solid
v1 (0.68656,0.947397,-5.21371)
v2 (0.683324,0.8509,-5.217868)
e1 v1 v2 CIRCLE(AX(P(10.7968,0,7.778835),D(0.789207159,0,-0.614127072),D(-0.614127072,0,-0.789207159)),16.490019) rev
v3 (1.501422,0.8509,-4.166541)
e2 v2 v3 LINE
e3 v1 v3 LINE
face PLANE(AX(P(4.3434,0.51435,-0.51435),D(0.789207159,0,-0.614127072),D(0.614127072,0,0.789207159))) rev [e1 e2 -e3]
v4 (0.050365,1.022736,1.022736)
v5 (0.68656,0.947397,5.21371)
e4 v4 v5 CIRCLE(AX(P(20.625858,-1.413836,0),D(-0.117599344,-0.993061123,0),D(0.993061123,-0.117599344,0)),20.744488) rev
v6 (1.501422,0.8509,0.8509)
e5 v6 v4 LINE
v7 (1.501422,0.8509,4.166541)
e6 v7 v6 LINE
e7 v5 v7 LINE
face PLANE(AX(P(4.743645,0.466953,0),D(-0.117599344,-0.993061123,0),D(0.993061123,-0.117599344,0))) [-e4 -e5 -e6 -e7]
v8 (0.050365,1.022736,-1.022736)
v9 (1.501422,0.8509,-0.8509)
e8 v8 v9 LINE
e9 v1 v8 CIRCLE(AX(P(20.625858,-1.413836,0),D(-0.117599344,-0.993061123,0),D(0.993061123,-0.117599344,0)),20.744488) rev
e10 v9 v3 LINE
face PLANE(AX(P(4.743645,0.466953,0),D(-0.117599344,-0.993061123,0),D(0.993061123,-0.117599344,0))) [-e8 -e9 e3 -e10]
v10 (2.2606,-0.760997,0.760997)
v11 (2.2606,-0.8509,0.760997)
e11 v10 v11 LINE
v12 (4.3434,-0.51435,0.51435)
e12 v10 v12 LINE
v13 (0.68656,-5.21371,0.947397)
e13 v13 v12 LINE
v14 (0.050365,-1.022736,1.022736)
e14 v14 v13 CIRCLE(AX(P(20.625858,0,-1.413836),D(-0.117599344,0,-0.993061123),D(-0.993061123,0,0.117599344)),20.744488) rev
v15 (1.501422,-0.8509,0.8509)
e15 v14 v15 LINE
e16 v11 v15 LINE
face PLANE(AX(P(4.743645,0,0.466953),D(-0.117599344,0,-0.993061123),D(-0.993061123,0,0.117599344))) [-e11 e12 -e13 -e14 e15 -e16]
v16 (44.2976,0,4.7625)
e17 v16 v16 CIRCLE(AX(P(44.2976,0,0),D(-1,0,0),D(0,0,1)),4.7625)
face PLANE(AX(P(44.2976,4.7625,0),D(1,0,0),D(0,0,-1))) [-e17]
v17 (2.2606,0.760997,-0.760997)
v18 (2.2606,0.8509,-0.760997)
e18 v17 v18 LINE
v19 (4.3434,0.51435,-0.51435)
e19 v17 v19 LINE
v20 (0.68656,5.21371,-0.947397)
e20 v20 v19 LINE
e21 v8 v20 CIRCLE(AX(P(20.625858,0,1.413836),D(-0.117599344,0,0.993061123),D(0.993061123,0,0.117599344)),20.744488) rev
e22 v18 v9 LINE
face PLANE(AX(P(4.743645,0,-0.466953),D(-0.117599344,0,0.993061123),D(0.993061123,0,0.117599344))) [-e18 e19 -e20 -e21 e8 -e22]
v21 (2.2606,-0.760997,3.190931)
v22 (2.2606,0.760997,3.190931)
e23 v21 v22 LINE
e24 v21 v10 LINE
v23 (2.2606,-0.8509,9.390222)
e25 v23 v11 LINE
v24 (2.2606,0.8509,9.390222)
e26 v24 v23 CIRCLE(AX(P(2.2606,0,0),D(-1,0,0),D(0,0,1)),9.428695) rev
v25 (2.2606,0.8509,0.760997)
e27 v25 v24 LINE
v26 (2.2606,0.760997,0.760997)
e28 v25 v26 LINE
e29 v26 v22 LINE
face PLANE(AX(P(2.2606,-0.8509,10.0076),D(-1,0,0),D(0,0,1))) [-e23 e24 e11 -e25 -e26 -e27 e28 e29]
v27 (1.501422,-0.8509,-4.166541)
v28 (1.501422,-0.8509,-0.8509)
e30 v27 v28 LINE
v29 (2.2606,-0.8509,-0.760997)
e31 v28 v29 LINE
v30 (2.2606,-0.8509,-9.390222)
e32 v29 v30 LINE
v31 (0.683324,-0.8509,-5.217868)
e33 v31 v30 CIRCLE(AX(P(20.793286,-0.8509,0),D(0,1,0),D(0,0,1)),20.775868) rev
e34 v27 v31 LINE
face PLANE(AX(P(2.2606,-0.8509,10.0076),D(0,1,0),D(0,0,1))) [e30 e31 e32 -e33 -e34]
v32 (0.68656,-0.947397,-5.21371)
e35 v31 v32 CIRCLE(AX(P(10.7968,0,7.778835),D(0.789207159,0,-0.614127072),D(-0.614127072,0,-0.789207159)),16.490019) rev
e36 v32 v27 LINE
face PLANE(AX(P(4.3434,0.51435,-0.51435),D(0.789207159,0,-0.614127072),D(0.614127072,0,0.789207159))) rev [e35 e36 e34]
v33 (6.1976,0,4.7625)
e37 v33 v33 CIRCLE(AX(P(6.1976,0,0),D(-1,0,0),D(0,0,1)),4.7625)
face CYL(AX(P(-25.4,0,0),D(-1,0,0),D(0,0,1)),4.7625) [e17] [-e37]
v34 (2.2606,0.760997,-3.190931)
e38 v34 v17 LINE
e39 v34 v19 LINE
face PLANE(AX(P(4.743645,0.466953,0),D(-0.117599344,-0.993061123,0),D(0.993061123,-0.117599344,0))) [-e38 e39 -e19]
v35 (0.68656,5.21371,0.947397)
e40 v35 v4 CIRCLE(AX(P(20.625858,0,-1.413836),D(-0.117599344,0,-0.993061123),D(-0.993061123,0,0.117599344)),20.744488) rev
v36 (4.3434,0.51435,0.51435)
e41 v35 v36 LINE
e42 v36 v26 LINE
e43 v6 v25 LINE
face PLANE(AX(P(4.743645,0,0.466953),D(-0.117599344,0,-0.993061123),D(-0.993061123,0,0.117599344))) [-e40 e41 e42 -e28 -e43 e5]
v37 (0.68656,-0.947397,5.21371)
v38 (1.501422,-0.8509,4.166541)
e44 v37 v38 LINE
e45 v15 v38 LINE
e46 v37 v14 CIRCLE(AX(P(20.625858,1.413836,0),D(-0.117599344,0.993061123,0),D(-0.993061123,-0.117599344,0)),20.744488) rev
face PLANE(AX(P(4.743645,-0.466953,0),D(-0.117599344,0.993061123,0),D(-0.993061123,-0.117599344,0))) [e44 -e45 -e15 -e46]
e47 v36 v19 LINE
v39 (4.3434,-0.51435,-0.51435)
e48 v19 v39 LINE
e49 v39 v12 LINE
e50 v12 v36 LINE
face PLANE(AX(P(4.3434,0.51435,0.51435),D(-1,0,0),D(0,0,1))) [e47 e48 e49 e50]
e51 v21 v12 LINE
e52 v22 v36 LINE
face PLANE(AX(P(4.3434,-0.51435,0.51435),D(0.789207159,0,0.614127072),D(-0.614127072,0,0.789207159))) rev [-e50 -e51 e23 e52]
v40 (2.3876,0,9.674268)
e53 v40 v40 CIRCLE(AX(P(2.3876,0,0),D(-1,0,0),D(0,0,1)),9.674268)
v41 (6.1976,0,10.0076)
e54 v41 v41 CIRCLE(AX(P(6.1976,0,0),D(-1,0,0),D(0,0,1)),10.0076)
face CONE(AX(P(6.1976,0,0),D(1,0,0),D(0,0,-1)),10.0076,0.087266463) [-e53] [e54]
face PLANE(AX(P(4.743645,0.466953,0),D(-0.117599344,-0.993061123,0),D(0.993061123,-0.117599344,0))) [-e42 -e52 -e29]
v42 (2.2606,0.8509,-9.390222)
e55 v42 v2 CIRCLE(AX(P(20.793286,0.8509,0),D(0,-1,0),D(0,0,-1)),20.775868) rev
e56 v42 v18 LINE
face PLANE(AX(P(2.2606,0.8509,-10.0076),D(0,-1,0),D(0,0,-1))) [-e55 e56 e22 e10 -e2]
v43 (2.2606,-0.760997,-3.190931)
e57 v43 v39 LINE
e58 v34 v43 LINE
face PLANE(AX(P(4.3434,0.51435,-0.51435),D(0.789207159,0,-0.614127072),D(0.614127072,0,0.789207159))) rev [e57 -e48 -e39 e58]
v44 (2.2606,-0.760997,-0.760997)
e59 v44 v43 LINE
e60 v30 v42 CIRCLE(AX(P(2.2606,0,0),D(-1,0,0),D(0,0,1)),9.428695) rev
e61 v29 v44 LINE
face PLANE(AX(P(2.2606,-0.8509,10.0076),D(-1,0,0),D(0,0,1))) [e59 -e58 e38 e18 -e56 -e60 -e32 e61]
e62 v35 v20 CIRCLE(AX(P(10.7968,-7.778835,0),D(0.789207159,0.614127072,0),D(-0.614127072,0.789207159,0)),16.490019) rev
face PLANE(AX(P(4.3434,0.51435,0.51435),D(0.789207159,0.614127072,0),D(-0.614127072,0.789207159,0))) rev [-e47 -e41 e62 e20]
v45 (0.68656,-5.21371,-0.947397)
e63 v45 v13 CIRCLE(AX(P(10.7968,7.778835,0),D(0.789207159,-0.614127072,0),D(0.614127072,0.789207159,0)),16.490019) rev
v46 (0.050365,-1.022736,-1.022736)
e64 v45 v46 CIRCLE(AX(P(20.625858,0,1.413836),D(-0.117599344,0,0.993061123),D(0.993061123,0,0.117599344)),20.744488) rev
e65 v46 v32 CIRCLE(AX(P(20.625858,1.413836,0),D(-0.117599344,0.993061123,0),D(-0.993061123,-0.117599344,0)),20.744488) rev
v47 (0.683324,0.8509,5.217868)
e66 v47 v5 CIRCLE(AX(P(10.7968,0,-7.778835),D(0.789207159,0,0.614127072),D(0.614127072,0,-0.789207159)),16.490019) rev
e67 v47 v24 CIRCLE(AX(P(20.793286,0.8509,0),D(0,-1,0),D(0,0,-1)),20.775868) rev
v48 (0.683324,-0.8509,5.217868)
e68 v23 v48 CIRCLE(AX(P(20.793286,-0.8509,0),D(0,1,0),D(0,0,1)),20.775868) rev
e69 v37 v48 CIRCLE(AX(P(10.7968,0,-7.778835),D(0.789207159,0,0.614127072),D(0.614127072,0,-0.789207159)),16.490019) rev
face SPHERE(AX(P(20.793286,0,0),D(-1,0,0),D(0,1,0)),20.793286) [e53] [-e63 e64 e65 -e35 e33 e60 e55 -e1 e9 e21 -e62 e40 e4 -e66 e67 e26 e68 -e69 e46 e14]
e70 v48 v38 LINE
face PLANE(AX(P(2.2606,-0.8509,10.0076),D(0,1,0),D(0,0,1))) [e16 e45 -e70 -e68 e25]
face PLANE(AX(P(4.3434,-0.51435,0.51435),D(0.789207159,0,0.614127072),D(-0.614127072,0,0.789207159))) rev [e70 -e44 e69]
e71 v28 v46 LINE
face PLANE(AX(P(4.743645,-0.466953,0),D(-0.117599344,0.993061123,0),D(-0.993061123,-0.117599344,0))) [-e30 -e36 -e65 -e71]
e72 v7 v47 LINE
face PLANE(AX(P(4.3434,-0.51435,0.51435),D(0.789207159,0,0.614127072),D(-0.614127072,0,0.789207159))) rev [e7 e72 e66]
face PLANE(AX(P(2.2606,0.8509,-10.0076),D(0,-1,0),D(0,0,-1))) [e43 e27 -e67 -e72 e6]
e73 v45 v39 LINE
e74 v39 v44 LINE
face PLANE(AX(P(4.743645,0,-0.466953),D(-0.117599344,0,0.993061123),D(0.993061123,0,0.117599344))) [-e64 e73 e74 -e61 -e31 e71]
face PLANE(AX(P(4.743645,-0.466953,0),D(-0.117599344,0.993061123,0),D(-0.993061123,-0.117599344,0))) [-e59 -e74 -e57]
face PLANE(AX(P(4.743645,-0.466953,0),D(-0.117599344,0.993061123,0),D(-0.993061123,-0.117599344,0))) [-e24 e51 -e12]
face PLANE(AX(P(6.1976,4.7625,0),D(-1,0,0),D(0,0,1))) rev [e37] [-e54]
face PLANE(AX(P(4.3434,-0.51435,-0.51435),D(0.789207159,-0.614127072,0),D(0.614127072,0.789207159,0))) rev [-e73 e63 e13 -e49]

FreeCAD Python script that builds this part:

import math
import FreeCAD as App
import Part
import Sketcher
Q = App.Units.Quantity


def add_polygon(sketch, points):
    """Adds a closed chain of lines whose ends are joined by coincident constraints."""
    first, n = sketch.GeometryCount, len(points)
    for a, b in zip(points, points[1:] + points[:1]):
        sketch.addGeometry(Part.LineSegment(App.Vector(*a, 0), App.Vector(*b, 0)), False)
    for i in range(n):
        sketch.addConstraint(Sketcher.Constraint("Coincident", first + i, 2, first + (i + 1) % n, 1))

doc = App.newDocument("Part")
body = doc.addObject("PartDesign::Body", "Body")

# Sketch on XY plane
sketch1 = body.newObject("Sketcher::SketchObject", "Sketch")
sketch1.AttachmentSupport = (doc.getObject("XY_Plane"), [""])
sketch1.MapMode = "FlatFace"
sketch1.addGeometry([
    Part.LineSegment(App.Vector(6.1976, 4.7625, 0), App.Vector(6.1976, 10.0076, 0)),  # 0
    Part.LineSegment(App.Vector(6.1976, 10.0076, 0), App.Vector(2.3876, 9.674268, 0)),  # 1
    Part.ArcOfCircle(Part.Circle(App.Vector(20.793286, 0, 0), App.Vector(0, 0, 1), 20.793286), math.radians(152.273), math.radians(180)),  # 2
    Part.LineSegment(App.Vector(0, 0, 0), App.Vector(44.2976, 0, 0)),  # 3
    Part.LineSegment(App.Vector(44.2976, 0, 0), App.Vector(44.2976, 4.7625, 0)),  # 4
    Part.LineSegment(App.Vector(44.2976, 4.7625, 0), App.Vector(6.1976, 4.7625, 0)),  # 5
], False)
sketch1.addConstraint([
    Sketcher.Constraint("Coincident", 0, 2, 1, 1),
    Sketcher.Constraint("Coincident", 1, 2, 2, 1),
    Sketcher.Constraint("Coincident", 2, 2, 3, 1),
    Sketcher.Constraint("Coincident", 3, 2, 4, 1),
    Sketcher.Constraint("Coincident", 4, 2, 5, 1),
    Sketcher.Constraint("Coincident", 5, 2, 0, 1),
    Sketcher.Constraint("Vertical", 0),
    Sketcher.Constraint("Horizontal", 3),
    Sketcher.Constraint("Vertical", 4),
    Sketcher.Constraint("Horizontal", 5),
    Sketcher.Constraint("Coincident", 2, 2, -1, 1),
    Sketcher.Constraint("PointOnObject", 2, 3, -1),
    Sketcher.Constraint("DistanceX", 5, 2, 5, 1, Q("1.5 in")),
    Sketcher.Constraint("Angle", 1, Q("-175 deg")),
    Sketcher.Constraint("DistanceX", 3, 1, 3, 2, Q("1.744 in")),
    Sketcher.Constraint("DistanceY", 4, 1, 4, 2, Q("0.1875 in")),
    Sketcher.Constraint("DistanceX", 1, 2, 0, 2, Q("0.15 in")),
    Sketcher.Constraint("DistanceY", 0, 1, 0, 2, Q("0.2065 in")),
])
revolution = body.newObject("PartDesign::Revolution", "Revolution")
revolution.Profile = sketch1
revolution.ReferenceAxis = (sketch1, ["H_Axis"])
revolution.Angle = 360

# Sketch on YZ plane
sketch2 = body.newObject("Sketcher::SketchObject", "Sketch001")
sketch2.AttachmentSupport = (doc.getObject("YZ_Plane"), [""])
sketch2.MapMode = "FlatFace"
add_polygon(sketch2, [(0.8509, 10.0076), (-0.8509, 10.0076), (-0.8509, -10.0076), (0.8509, -10.0076)])  # lines 0-3
sketch2.addConstraint([
    Sketcher.Constraint("Horizontal", 0),
    Sketcher.Constraint("Vertical", 1),
    Sketcher.Constraint("Horizontal", 2),
    Sketcher.Constraint("Vertical", 3),
    Sketcher.Constraint("Symmetric", 0, 2, 2, 2, -1, 1),
    Sketcher.Constraint("DistanceX", 0, 2, 0, 1, Q("0.067 in")),
    Sketcher.Constraint("DistanceY", 1, 2, 1, 1, Q("0.788 in")),
])
pocket1 = body.newObject("PartDesign::Pocket", "Pocket")
pocket1.Profile = sketch2
pocket1.Length = Q("0.089 in")
pocket1.Reversed = True

# Sketch on YZ plane
sketch3 = body.newObject("Sketcher::SketchObject", "Sketch002")
sketch3.AttachmentSupport = (doc.getObject("YZ_Plane"), [""])
sketch3.MapMode = "FlatFace"
add_polygon(sketch3, [(6.096, -1.0287), (6.096, 1.0287), (-6.096, 1.0287), (-6.096, -1.0287)])  # lines 0-3
sketch3.addConstraint([
    Sketcher.Constraint("Vertical", 0),
    Sketcher.Constraint("Horizontal", 1),
    Sketcher.Constraint("Vertical", 2),
    Sketcher.Constraint("Horizontal", 3),
    Sketcher.Constraint("Symmetric", 0, 2, 2, 2, -1, 1),
    Sketcher.Constraint("DistanceX", 1, 2, 1, 1, Q("0.48 in")),
    Sketcher.Constraint("DistanceY", 0, 1, 0, 2, Q("0.081 in")),
])

# Sketch on YZ plane
sketch4 = body.newObject("Sketcher::SketchObject", "Sketch003")
sketch4.AttachmentSupport = (doc.getObject("YZ_Plane"), [""])
sketch4.MapMode = "FlatFace"
sketch4.AttachmentOffset = App.Placement(App.Vector(0, 0, 0.171 * 25.4), App.Rotation())
add_polygon(sketch4, [(0.51435, -0.51435), (0.51435, 0.51435), (-0.51435, 0.51435), (-0.51435, -0.51435)])  # lines 0-3
sketch4.addConstraint([
    Sketcher.Constraint("Vertical", 0),
    Sketcher.Constraint("Horizontal", 1),
    Sketcher.Constraint("Vertical", 2),
    Sketcher.Constraint("Horizontal", 3),
    Sketcher.Constraint("Symmetric", 0, 2, 2, 2, -1, 1),
    Sketcher.Constraint("Equal", 3, 0),
    Sketcher.Constraint("DistanceX", 1, 2, 1, 1, Q("0.0405 in")),
])

subtractiveloft = body.newObject("PartDesign::SubtractiveLoft", "SubtractiveLoft")
subtractiveloft.Profile = sketch3
subtractiveloft.Sections = [sketch4]
doc.recompute()

polarpattern = body.newObject("PartDesign::PolarPattern", "PolarPattern")
polarpattern.Originals = [subtractiveloft]
polarpattern.Axis = (doc.getObject("X_Axis"), [""])
polarpattern.Angle = 90
polarpattern.Occurrences = 2
body.Tip = polarpattern

doc.recompute()
